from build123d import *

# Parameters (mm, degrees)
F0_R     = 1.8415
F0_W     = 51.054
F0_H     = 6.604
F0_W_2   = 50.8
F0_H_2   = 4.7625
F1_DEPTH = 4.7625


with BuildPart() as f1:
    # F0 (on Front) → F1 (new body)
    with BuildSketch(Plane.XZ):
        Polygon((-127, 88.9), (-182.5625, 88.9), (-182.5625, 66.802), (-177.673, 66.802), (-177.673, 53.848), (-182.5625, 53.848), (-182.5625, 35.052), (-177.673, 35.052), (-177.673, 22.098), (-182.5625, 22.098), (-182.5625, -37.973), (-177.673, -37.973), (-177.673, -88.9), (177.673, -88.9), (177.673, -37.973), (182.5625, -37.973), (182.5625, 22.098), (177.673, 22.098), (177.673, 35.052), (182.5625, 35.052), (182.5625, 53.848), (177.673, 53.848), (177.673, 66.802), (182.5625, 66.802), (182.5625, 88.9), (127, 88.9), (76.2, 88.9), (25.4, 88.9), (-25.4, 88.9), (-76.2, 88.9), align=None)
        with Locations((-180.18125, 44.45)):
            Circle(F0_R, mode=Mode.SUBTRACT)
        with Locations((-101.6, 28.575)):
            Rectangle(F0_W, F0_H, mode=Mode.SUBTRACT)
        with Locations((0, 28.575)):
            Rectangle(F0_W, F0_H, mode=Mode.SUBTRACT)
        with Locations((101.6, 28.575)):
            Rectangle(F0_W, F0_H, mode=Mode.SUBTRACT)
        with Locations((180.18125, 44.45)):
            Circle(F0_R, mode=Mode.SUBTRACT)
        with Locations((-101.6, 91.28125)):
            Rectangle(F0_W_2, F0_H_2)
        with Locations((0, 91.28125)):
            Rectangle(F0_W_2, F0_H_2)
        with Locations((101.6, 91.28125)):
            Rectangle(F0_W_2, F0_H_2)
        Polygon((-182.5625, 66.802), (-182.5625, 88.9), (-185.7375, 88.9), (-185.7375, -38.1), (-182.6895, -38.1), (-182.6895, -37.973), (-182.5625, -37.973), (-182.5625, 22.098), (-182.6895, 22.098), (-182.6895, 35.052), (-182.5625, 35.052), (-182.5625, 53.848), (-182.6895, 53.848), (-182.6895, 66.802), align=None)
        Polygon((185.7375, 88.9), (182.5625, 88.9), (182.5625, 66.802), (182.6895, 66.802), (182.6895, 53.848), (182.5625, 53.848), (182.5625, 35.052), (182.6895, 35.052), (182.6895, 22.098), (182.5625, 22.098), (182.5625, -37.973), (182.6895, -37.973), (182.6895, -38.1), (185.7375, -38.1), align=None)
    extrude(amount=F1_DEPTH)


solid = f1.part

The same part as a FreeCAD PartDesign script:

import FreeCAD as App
import Part
import Sketcher

V = App.Vector
Q = App.Units.Quantity

doc = App.newDocument("Part")
params = doc.addObject("Spreadsheet::Sheet", "Params")
for row, (alias, value) in enumerate([
    ("sketch1_width", "2 in"),
    ("sketch1_height", "5 in"),
    ("sketch1_diameter", "0.145 in"),
    ("sketch1_width2", "13.99 in"),
    ("sketch1_width3", "0.12 in"),
    ("pad1_length", "0.1875 in"),
], start=1):
    params.set(f"A{row}", alias)
    params.set(f"B{row}", "=" + value)
    params.setAlias(f"B{row}", alias)

body = doc.addObject("PartDesign::Body", "Body")

# Sketch on XZ plane
sketch1 = body.newObject("Sketcher::SketchObject", "Sketch")
sketch1.AttachmentSupport = (doc.getObject("XZ_Plane"), [""])
sketch1.MapMode = "FlatFace"
sketch1.addGeometry([
    Part.LineSegment(V(-177.67, -37.97, 0), V(-177.67, -88.9, 0)),  # 0
    Part.LineSegment(V(-177.67, -88.9, 0), V(177.67, -88.9, 0)),  # 1
    Part.LineSegment(V(177.67, -88.9, 0), V(177.67, -37.97, 0)),  # 2
    Part.LineSegment(V(177.67, -37.97, 0), V(182.69, -37.97, 0)),  # 3
    Part.LineSegment(V(182.69, -37.97, 0), V(182.69, -38.1, 0)),  # 4
    Part.LineSegment(V(182.69, -38.1, 0), V(185.74, -38.1, 0)),  # 5
    Part.LineSegment(V(185.74, -38.1, 0), V(185.74, 88.9, 0)),  # 6
    Part.LineSegment(V(185.74, 88.9, 0), V(127, 88.9, 0)),  # 7
    Part.LineSegment(V(127, 88.9, 0), V(127, 93.66, 0)),  # 8
    Part.LineSegment(V(127, 93.66, 0), V(76.2, 93.66, 0)),  # 9
    Part.LineSegment(V(76.2, 93.66, 0), V(76.2, 88.9, 0)),  # 10
    Part.LineSegment(V(76.2, 88.9, 0), V(25.4, 88.9, 0)),  # 11
    Part.LineSegment(V(25.4, 88.9, 0), V(25.4, 93.66, 0)),  # 12
    Part.LineSegment(V(25.4, 93.66, 0), V(-25.4, 93.66, 0)),  # 13
    Part.LineSegment(V(-25.4, 93.66, 0), V(-25.4, 88.9, 0)),  # 14
    Part.LineSegment(V(-25.4, 88.9, 0), V(-76.2, 88.9, 0)),  # 15
    Part.LineSegment(V(-76.2, 88.9, 0), V(-76.2, 93.66, 0)),  # 16
    Part.LineSegment(V(-76.2, 93.66, 0), V(-127, 93.66, 0)),  # 17
    Part.LineSegment(V(-127, 93.66, 0), V(-127, 88.9, 0)),  # 18
    Part.LineSegment(V(-127, 88.9, 0), V(-185.74, 88.9, 0)),  # 19
    Part.LineSegment(V(-185.74, 88.9, 0), V(-185.74, -38.1, 0)),  # 20
    Part.LineSegment(V(-185.74, -38.1, 0), V(-182.69, -38.1, 0)),  # 21
    Part.LineSegment(V(-182.69, -38.1, 0), V(-182.69, -37.97, 0)),  # 22
    Part.LineSegment(V(-182.69, -37.97, 0), V(-177.67, -37.97, 0)),  # 23
    Part.LineSegment(V(-177.67, 66.8, 0), V(-177.67, 53.85, 0)),  # 24
    Part.LineSegment(V(-177.67, 53.85, 0), V(-182.69, 53.85, 0)),  # 25
    Part.LineSegment(V(-182.69, 53.85, 0), V(-182.69, 66.8, 0)),  # 26
    Part.LineSegment(V(-182.69, 66.8, 0), V(-177.67, 66.8, 0)),  # 27
    Part.LineSegment(V(-177.67, 35.05, 0), V(-177.67, 22.1, 0)),  # 28
    Part.LineSegment(V(-177.67, 22.1, 0), V(-182.69, 22.1, 0)),  # 29
    Part.LineSegment(V(-182.69, 22.1, 0), V(-182.69, 35.05, 0)),  # 30
    Part.LineSegment(V(-182.69, 35.05, 0), V(-177.67, 35.05, 0)),  # 31
    Part.LineSegment(V(177.67, 22.1, 0), V(177.67, 35.05, 0)),  # 32
    Part.LineSegment(V(177.67, 35.05, 0), V(182.69, 35.05, 0)),  # 33
    Part.LineSegment(V(182.69, 35.05, 0), V(182.69, 22.1, 0)),  # 34
    Part.LineSegment(V(182.69, 22.1, 0), V(177.67, 22.1, 0)),  # 35
    Part.LineSegment(V(177.67, 53.85, 0), V(177.67, 66.8, 0)),  # 36
    Part.LineSegment(V(177.67, 66.8, 0), V(182.69, 66.8, 0)),  # 37
    Part.LineSegment(V(182.69, 66.8, 0), V(182.69, 53.85, 0)),  # 38
    Part.LineSegment(V(182.69, 53.85, 0), V(177.67, 53.85, 0)),  # 39
    Part.LineSegment(V(-76.07, 25.27, 0), V(-127.13, 25.27, 0)),  # 40
    Part.LineSegment(V(-127.13, 25.27, 0), V(-127.13, 31.88, 0)),  # 41
    Part.LineSegment(V(-127.13, 31.88, 0), V(-76.07, 31.88, 0)),  # 42
    Part.LineSegment(V(-76.07, 31.88, 0), V(-76.07, 25.27, 0)),  # 43
    Part.LineSegment(V(25.53, 25.27, 0), V(-25.53, 25.27, 0)),  # 44
    Part.LineSegment(V(-25.53, 25.27, 0), V(-25.53, 31.88, 0)),  # 45
    Part.LineSegment(V(-25.53, 31.88, 0), V(25.53, 31.88, 0)),  # 46
    Part.LineSegment(V(25.53, 31.88, 0), V(25.53, 25.27, 0)),  # 47
    Part.LineSegment(V(127.13, 25.27, 0), V(76.07, 25.27, 0)),  # 48
    Part.LineSegment(V(76.07, 25.27, 0), V(76.07, 31.88, 0)),  # 49
    Part.LineSegment(V(76.07, 31.88, 0), V(127.13, 31.88, 0)),  # 50
    Part.LineSegment(V(127.13, 31.88, 0), V(127.13, 25.27, 0)),  # 51
    Part.Circle(V(-180.18, 44.45, 0), V(0, 0, 1), 1.84),  # 52
    Part.Circle(V(180.18, 44.45, 0), V(0, 0, 1), 1.84),  # 53
], False)
sketch1.addConstraint([
    Sketcher.Constraint("Coincident", 0, 2, 1, 1),
    Sketcher.Constraint("Coincident", 1, 2, 2, 1),
    Sketcher.Constraint("Coincident", 2, 2, 3, 1),
    Sketcher.Constraint("Coincident", 3, 2, 4, 1),
    Sketcher.Constraint("Coincident", 4, 2, 5, 1),
    Sketcher.Constraint("Coincident", 5, 2, 6, 1),
    Sketcher.Constraint("Coincident", 6, 2, 7, 1),
    Sketcher.Constraint("Coincident", 7, 2, 8, 1),
    Sketcher.Constraint("Coincident", 8, 2, 9, 1),
    Sketcher.Constraint("Coincident", 9, 2, 10, 1),
    Sketcher.Constraint("Coincident", 10, 2, 11, 1),
    Sketcher.Constraint("Coincident", 11, 2, 12, 1),
    Sketcher.Constraint("Coincident", 12, 2, 13, 1),
    Sketcher.Constraint("Coincident", 13, 2, 14, 1),
    Sketcher.Constraint("Coincident", 14, 2, 15, 1),
    Sketcher.Constraint("Coincident", 15, 2, 16, 1),
    Sketcher.Constraint("Coincident", 16, 2, 17, 1),
    Sketcher.Constraint("Coincident", 17, 2, 18, 1),
    Sketcher.Constraint("Coincident", 18, 2, 19, 1),
    Sketcher.Constraint("Coincident", 19, 2, 20, 1),
    Sketcher.Constraint("Coincident", 20, 2, 21, 1),
    Sketcher.Constraint("Coincident", 21, 2, 22, 1),
    Sketcher.Constraint("Coincident", 22, 2, 23, 1),
    Sketcher.Constraint("Coincident", 23, 2, 0, 1),
    Sketcher.Constraint("Coincident", 24, 2, 25, 1),
    Sketcher.Constraint("Coincident", 25, 2, 26, 1),
    Sketcher.Constraint("Coincident", 26, 2, 27, 1),
    Sketcher.Constraint("Coincident", 27, 2, 24, 1),
    Sketcher.Constraint("Coincident", 28, 2, 29, 1),
    Sketcher.Constraint("Coincident", 29, 2, 30, 1),
    Sketcher.Constraint("Coincident", 30, 2, 31, 1),
    Sketcher.Constraint("Coincident", 31, 2, 28, 1),
    Sketcher.Constraint("Coincident", 32, 2, 33, 1),
    Sketcher.Constraint("Coincident", 33, 2, 34, 1),
    Sketcher.Constraint("Coincident", 34, 2, 35, 1),
    Sketcher.Constraint("Coincident", 35, 2, 32, 1),
    Sketcher.Constraint("Coincident", 36, 2, 37, 1),
    Sketcher.Constraint("Coincident", 37, 2, 38, 1),
    Sketcher.Constraint("Coincident", 38, 2, 39, 1),
    Sketcher.Constraint("Coincident", 39, 2, 36, 1),
    Sketcher.Constraint("Coincident", 40, 2, 41, 1),
    Sketcher.Constraint("Coincident", 41, 2, 42, 1),
    Sketcher.Constraint("Coincident", 42, 2, 43, 1),
    Sketcher.Constraint("Coincident", 43, 2, 40, 1),
    Sketcher.Constraint("Coincident", 44, 2, 45, 1),
    Sketcher.Constraint("Coincident", 45, 2, 46, 1),
    Sketcher.Constraint("Coincident", 46, 2, 47, 1),
    Sketcher.Constraint("Coincident", 47, 2, 44, 1),
    Sketcher.Constraint("Coincident", 48, 2, 49, 1),
    Sketcher.Constraint("Coincident", 49, 2, 50, 1),
    Sketcher.Constraint("Coincident", 50, 2, 51, 1),
    Sketcher.Constraint("Coincident", 51, 2, 48, 1),
    Sketcher.Constraint("Vertical", 0),
    Sketcher.Constraint("Horizontal", 1),
    Sketcher.Constraint("Vertical", 2),
    Sketcher.Constraint("Horizontal", 3),
    Sketcher.Constraint("Vertical", 4),
    Sketcher.Constraint("Horizontal", 5),
    Sketcher.Constraint("Vertical", 6),
    Sketcher.Constraint("Horizontal", 7),
    Sketcher.Constraint("Vertical", 8),
    Sketcher.Constraint("Horizontal", 9),
    Sketcher.Constraint("Vertical", 10),
    Sketcher.Constraint("Horizontal", 11),
    Sketcher.Constraint("Vertical", 12),
    Sketcher.Constraint("Horizontal", 13),
    Sketcher.Constraint("Vertical", 14),
    Sketcher.Constraint("Horizontal", 15),
    Sketcher.Constraint("Vertical", 16),
    Sketcher.Constraint("Horizontal", 17),
    Sketcher.Constraint("Vertical", 18),
    Sketcher.Constraint("Horizontal", 19),
    Sketcher.Constraint("Vertical", 20),
    Sketcher.Constraint("Horizontal", 21),
    Sketcher.Constraint("Vertical", 22),
    Sketcher.Constraint("Horizontal", 23),
    Sketcher.Constraint("Vertical", 24),
    Sketcher.Constraint("Horizontal", 25),
    Sketcher.Constraint("Vertical", 26),
    Sketcher.Constraint("Horizontal", 27),
    Sketcher.Constraint("Vertical", 28),
    Sketcher.Constraint("Horizontal", 29),
    Sketcher.Constraint("Vertical", 30),
    Sketcher.Constraint("Horizontal", 31),
    Sketcher.Constraint("Vertical", 32),
    Sketcher.Constraint("Horizontal", 33),
    Sketcher.Constraint("Vertical", 34),
    Sketcher.Constraint("Horizontal", 35),
    Sketcher.Constraint("Vertical", 36),
    Sketcher.Constraint("Horizontal", 37),
    Sketcher.Constraint("Vertical", 38),
    Sketcher.Constraint("Horizontal", 39),
    Sketcher.Constraint("Horizontal", 40),
    Sketcher.Constraint("Vertical", 41),
    Sketcher.Constraint("Horizontal", 42),
    Sketcher.Constraint("Vertical", 43),
    Sketcher.Constraint("Horizontal", 44),
    Sketcher.Constraint("Vertical", 45),
    Sketcher.Constraint("Horizontal", 46),
    Sketcher.Constraint("Vertical", 47),
    Sketcher.Constraint("Horizontal", 48),
    Sketcher.Constraint("Vertical", 49),
    Sketcher.Constraint("Horizontal", 50),
    Sketcher.Constraint("Vertical", 51),
    Sketcher.Constraint("Equal", 52, 53),
    Sketcher.Constraint("Symmetric", 52, 3, 53, 3, -2),
    Sketcher.Constraint("Symmetric", 11, 2, 14, 2, -2),
    Sketcher.Constraint("Symmetric", 9, 2, 16, 2, -2),
    Sketcher.Constraint("Symmetric", 7, 2, 18, 2, -2),
    Sketcher.Constraint("Symmetric", 5, 2, 20, 2, -2),
    Sketcher.Constraint("Symmetric", 3, 2, 22, 2, -2),
    Sketcher.Constraint("Symmetric", 31, 2, 32, 2, -2),
    Sketcher.Constraint("Symmetric", 29, 2, 34, 2, -2),
    Sketcher.Constraint("Symmetric", 27, 2, 36, 2, -2),
    Sketcher.Constraint("Symmetric", 25, 2, 38, 2, -2),
    Sketcher.Constraint("Symmetric", 43, 2, 48, 2, -2),
    Sketcher.Constraint("Symmetric", 41, 2, 50, 2, -2),
    Sketcher.Constraint("Horizontal", 7, 2, 10, 2),
    Sketcher.Constraint("Horizontal", 9, 2, 12, 2),
    Sketcher.Constraint("Horizontal", 43, 2, 44, 2),
    Sketcher.Constraint("Horizontal", 42, 2, 45, 2),
    Sketcher.Constraint("Vertical", 23, 2, 24, 2),
    Sketcher.Constraint("Vertical", 22, 2, 25, 2),
    Sketcher.Constraint("Vertical", 27, 2, 28, 2),
    Sketcher.Constraint("Vertical", 26, 2, 29, 2),
    Sketcher.Constraint("Vertical", 2, 2, 32, 2),
    Sketcher.Constraint("Equal", 9, 11),
    Sketcher.Constraint("Equal", 11, 13),
    Sketcher.Constraint("Equal", 42, 44),
    Sketcher.Constraint("Equal", 26, 28),
    Sketcher.Constraint("DistanceX", 9, 2, 9, 1, Q("2 in")),
    Sketcher.Constraint("DistanceY", 6, 1, 6, 2, Q("5 in")),
    Sketcher.Constraint("Diameter", 52, Q("0.145 in")),
    Sketcher.Constraint("DistanceY", 1, 2, 4, 2, Q("2 in")),
    Sketcher.Constraint("DistanceX", 1, 1, 1, 2, Q("13.99 in")),
    Sketcher.Constraint("DistanceX", 5, 1, 5, 2, Q("0.12 in")),
    Sketcher.Constraint("DistanceX", 40, 2, 40, 1, Q("2.01 in")),
    Sketcher.Constraint("DistanceY", 24, 2, 24, 1, Q("0.51 in")),
    Sketcher.Constraint("DistanceY", 41, 1, 41, 2, Q("0.26 in")),
    Sketcher.Constraint("DistanceY", 0, 2, -1, 1, Q("3.5 in")),
    Sketcher.Constraint("DistanceX", 7, 2, 7, 1, Q("2.3125 in")),
    Sketcher.Constraint("DistanceY", 0, 2, 0, 1, Q("2.005 in")),
    Sketcher.Constraint("DistanceY", 8, 1, 8, 2, Q("0.1875 in")),
    Sketcher.Constraint("DistanceY", -1, 1, 52, 3, Q("1.75 in")),
    Sketcher.Constraint("DistanceY", -1, 1, 24, 2, Q("2.12 in")),
    Sketcher.Constraint("DistanceY", -1, 1, 28, 2, Q("0.87 in")),
    Sketcher.Constraint("DistanceX", 28, 2, 40, 2, Q("1.99 in")),
    Sketcher.Constraint("DistanceX", 43, 2, 44, 2, Q("1.99 in")),
    Sketcher.Constraint("DistanceX", 52, 3, -1, 1, Q("7.09375 in")),
    Sketcher.Constraint("DistanceY", -1, 1, 40, 2, Q("0.995 in")),
])
sketch1.setExpression("Constraints[130]", "Params.sketch1_width")
sketch1.setExpression("Constraints[131]", "Params.sketch1_height")
sketch1.setExpression("Constraints[132]", "Params.sketch1_diameter")
sketch1.setExpression("Constraints[134]", "Params.sketch1_width2")
sketch1.setExpression("Constraints[135]", "Params.sketch1_width3")
pad1 = body.newObject("PartDesign::Pad", "Pad")
pad1.Profile = sketch1
pad1.setExpression("Length", "Params.pad1_length")

doc.recompute()
